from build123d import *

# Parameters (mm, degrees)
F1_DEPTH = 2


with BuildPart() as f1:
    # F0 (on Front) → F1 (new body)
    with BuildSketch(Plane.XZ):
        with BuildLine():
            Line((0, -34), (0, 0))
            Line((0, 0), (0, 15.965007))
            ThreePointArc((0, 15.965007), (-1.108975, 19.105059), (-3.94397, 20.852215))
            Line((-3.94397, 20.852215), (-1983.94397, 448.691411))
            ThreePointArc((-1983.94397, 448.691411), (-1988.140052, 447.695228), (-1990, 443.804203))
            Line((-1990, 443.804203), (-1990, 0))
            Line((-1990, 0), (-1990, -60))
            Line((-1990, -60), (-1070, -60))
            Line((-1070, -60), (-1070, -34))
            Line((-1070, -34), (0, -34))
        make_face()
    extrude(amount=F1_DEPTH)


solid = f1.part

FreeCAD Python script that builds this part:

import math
import FreeCAD as App
import Part
import Sketcher
from FreeCAD import Vector
Q = App.Units.Quantity

doc = App.newDocument("Part")
body = doc.addObject("PartDesign::Body", "Body")

# Sketch on XZ plane
sketch1 = body.newObject("Sketcher::SketchObject", "Sketch")
sketch1.AttachmentSupport = (doc.getObject("XZ_Plane"), [""])
sketch1.MapMode = "FlatFace"
sketch1.addGeometry([
    Part.LineSegment(Vector(0, -34, 0), Vector(0, 16, 0)),  # 0
    Part.ArcOfCircle(Part.Circle(Vector(-5, 16, 0), Vector(0, 0, 1), 5), math.radians(0), math.radians(78)),  # 1
    Part.LineSegment(Vector(-3.9, 20.9, 0), Vector(-1983.9, 448.7, 0)),  # 2
    Part.ArcOfCircle(Part.Circle(Vector(-1985, 443.8, 0), Vector(0, 0, 1), 5), math.radians(78), math.radians(180)),  # 3
    Part.LineSegment(Vector(-1990, 443.8, 0), Vector(-1990, -60, 0)),  # 4
    Part.LineSegment(Vector(-1990, -60, 0), Vector(-1070, -60, 0)),  # 5
    Part.LineSegment(Vector(-1070, -60, 0), Vector(-1070, -34, 0)),  # 6
    Part.LineSegment(Vector(-1070, -34, 0), Vector(0, -34, 0)),  # 7
], False)
sketch1.addConstraint([
    Sketcher.Constraint("Tangent", 0, 2, 1, 1),
    Sketcher.Constraint("Tangent", 1, 2, 2, 1),
    Sketcher.Constraint("Tangent", 2, 2, 3, 1),
    Sketcher.Constraint("Tangent", 3, 2, 4, 1),
    Sketcher.Constraint("Coincident", 4, 2, 5, 1),
    Sketcher.Constraint("Coincident", 5, 2, 6, 1),
    Sketcher.Constraint("Coincident", 6, 2, 7, 1),
    Sketcher.Constraint("Coincident", 7, 2, 0, 1),
    Sketcher.Constraint("Vertical", 0),
    Sketcher.Constraint("Vertical", 4),
    Sketcher.Constraint("Horizontal", 5),
    Sketcher.Constraint("Vertical", 6),
    Sketcher.Constraint("Horizontal", 7),
    Sketcher.Constraint("Equal", 1, 3),
    Sketcher.Constraint("PointOnObject", 0, 2, -2),
    Sketcher.Constraint("Radius", 1, Q("5 mm")),
    Sketcher.Constraint("DistanceX", 5, 1, 5, 2, Q("920 mm")),
    Sketcher.Constraint("DistanceX", 7, 1, 7, 2, Q("1070 mm")),
    Sketcher.Constraint("DistanceY", 6, 1, 6, 2, Q("26 mm")),
    Sketcher.Constraint("DistanceY", 4, 2, -1, 1, Q("60 mm")),
    Sketcher.Constraint("DistanceY", 0, 1, 0, 2, Q("49.965007 mm")),
    Sketcher.Constraint("DistanceY", 4, 2, 4, 1, Q("503.804203 mm")),
])
pad1 = body.newObject("PartDesign::Pad", "Pad")
pad1.Profile = sketch1
pad1.Length = 2

doc.recompute()
